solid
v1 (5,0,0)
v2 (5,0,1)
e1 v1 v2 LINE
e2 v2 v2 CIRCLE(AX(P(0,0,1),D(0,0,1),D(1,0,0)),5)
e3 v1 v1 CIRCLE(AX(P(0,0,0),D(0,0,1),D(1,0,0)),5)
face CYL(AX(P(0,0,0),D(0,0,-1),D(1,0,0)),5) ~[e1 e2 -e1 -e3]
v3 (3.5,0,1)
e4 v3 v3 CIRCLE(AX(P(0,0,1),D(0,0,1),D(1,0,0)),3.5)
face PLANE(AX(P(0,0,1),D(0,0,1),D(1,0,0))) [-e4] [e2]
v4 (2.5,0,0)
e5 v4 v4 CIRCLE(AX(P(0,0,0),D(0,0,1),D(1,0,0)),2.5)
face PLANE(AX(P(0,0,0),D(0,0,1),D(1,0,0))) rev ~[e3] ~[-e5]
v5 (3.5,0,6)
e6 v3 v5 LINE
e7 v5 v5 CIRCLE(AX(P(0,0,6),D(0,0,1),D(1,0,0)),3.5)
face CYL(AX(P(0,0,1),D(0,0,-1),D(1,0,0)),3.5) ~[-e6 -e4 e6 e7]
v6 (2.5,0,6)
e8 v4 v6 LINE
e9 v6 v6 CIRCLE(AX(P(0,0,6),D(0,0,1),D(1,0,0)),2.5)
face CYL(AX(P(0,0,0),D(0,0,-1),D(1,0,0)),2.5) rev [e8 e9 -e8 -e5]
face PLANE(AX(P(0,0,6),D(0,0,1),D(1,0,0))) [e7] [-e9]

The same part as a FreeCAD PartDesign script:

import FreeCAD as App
import Part
import Sketcher

doc = App.newDocument("Part")
body = doc.addObject("PartDesign::Body", "Body")

sketch1 = doc.addObject("Sketcher::SketchObject", "Sketch")
body.addObject(sketch1)
sketch1.AttachmentSupport = (doc.XY_Plane, [""])
sketch1.MapMode = "FlatFace"
sketch1.addGeometry(Part.Circle(App.Vector(0, 0, 0), App.Vector(0, 0, 1), 5), False)
sketch1.addGeometry(Part.Circle(App.Vector(0, 0, 0), App.Vector(0, 0, 1), 2.5), False)
sketch1.addConstraint(Sketcher.Constraint("Coincident", 0, 3, -1, 1))
sketch1.addConstraint(Sketcher.Constraint("Coincident", 1, 3, -1, 1))
sketch1.addConstraint(Sketcher.Constraint("Diameter", 0, 10.0))
sketch1.addConstraint(Sketcher.Constraint("Diameter", 1, 5.0))
pad1 = doc.addObject("PartDesign::Pad", "Pad")
body.addObject(pad1)
pad1.Profile = sketch1
pad1.Length = 1

sketch2 = doc.addObject("Sketcher::SketchObject", "Sketch001")
body.addObject(sketch2)
sketch2.AttachmentSupport = (doc.XY_Plane, [""])
sketch2.MapMode = "FlatFace"
sketch2.AttachmentOffset = App.Placement(App.Vector(0, 0, 1), App.Rotation())
sketch2.addGeometry(Part.Circle(App.Vector(0, 0, 0), App.Vector(0, 0, 1), 3.5), False)
sketch2.addGeometry(Part.Circle(App.Vector(0, 0, 0), App.Vector(0, 0, 1), 2.5), False)
sketch2.addConstraint(Sketcher.Constraint("Coincident", 0, 3, -1, 1))
sketch2.addConstraint(Sketcher.Constraint("Coincident", 1, 3, -1, 1))
sketch2.addConstraint(Sketcher.Constraint("Diameter", 0, 7.0))
sketch2.addConstraint(Sketcher.Constraint("Diameter", 1, 5.0))
pad2 = doc.addObject("PartDesign::Pad", "Pad001")
body.addObject(pad2)
pad2.Profile = sketch2
pad2.Length = 5

doc.recompute()
